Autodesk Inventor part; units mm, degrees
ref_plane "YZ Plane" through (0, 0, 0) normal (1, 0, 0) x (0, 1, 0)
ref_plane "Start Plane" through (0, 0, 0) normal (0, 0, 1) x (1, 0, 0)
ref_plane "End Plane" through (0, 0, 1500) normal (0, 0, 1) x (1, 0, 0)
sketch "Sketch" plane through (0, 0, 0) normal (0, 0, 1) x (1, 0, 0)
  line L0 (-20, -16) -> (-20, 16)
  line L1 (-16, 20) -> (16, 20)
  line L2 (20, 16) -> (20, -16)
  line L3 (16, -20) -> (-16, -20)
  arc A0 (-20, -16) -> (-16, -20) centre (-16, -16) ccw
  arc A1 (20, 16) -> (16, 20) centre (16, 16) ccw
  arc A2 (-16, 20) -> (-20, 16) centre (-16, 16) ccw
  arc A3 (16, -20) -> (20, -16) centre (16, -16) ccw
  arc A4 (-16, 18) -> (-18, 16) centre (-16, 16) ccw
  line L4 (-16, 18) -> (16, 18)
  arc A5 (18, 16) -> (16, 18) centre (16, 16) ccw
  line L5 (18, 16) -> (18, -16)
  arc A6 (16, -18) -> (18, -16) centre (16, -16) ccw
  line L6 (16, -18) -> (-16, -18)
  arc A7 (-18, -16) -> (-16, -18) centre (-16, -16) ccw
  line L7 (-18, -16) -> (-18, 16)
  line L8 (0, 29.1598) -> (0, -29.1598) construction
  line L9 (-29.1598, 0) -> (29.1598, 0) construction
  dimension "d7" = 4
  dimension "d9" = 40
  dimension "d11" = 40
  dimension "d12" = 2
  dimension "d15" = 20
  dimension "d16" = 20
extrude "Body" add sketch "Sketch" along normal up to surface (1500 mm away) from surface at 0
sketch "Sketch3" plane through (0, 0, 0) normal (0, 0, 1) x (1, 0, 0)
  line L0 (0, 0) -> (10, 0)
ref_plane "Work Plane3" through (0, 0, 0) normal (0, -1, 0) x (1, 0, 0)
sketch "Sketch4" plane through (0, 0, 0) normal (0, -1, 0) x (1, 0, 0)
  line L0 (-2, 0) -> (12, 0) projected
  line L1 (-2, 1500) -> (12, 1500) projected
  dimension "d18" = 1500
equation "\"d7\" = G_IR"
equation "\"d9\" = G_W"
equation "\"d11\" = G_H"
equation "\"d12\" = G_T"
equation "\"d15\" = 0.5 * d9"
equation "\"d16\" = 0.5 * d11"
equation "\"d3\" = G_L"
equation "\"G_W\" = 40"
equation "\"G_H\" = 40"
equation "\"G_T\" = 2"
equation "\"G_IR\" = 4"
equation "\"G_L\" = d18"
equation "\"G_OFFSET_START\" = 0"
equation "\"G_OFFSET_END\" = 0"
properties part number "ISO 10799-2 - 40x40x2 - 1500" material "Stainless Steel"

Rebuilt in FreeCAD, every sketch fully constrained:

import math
import FreeCAD as App
import Part
import Sketcher
Q = App.Units.Quantity

doc = App.newDocument("Part")
body = doc.addObject("PartDesign::Body", "Body")

# Sketch on XY plane
sketch1 = body.newObject("Sketcher::SketchObject", "Sketch")
sketch1.AttachmentSupport = (doc.getObject("XY_Plane"), [""])
sketch1.MapMode = "FlatFace"
sketch1.addGeometry([
    Part.LineSegment(App.Vector(-20, 16, 0), App.Vector(-20, -16, 0)),  # 0
    Part.ArcOfCircle(Part.Circle(App.Vector(-16, -16, 0), App.Vector(0, 0, 1), 4), math.radians(180), math.radians(270)),  # 1
    Part.LineSegment(App.Vector(-16, -20, 0), App.Vector(16, -20, 0)),  # 2
    Part.ArcOfCircle(Part.Circle(App.Vector(16, -16, 0), App.Vector(0, 0, 1), 4), math.radians(-90), math.radians(0)),  # 3
    Part.LineSegment(App.Vector(20, -16, 0), App.Vector(20, 16, 0)),  # 4
    Part.ArcOfCircle(Part.Circle(App.Vector(16, 16, 0), App.Vector(0, 0, 1), 4), math.radians(0), math.radians(90)),  # 5
    Part.LineSegment(App.Vector(16, 20, 0), App.Vector(-16, 20, 0)),  # 6
    Part.ArcOfCircle(Part.Circle(App.Vector(-16, 16, 0), App.Vector(0, 0, 1), 4), math.radians(90), math.radians(180)),  # 7
    Part.ArcOfCircle(Part.Circle(App.Vector(-16, 16, 0), App.Vector(0, 0, 1), 2), math.radians(90), math.radians(180)),  # 8
    Part.LineSegment(App.Vector(-16, 18, 0), App.Vector(16, 18, 0)),  # 9
    Part.ArcOfCircle(Part.Circle(App.Vector(16, 16, 0), App.Vector(0, 0, 1), 2), math.radians(0), math.radians(90)),  # 10
    Part.LineSegment(App.Vector(18, 16, 0), App.Vector(18, -16, 0)),  # 11
    Part.ArcOfCircle(Part.Circle(App.Vector(16, -16, 0), App.Vector(0, 0, 1), 2), math.radians(-90), math.radians(0)),  # 12
    Part.LineSegment(App.Vector(16, -18, 0), App.Vector(-16, -18, 0)),  # 13
    Part.ArcOfCircle(Part.Circle(App.Vector(-16, -16, 0), App.Vector(0, 0, 1), 2), math.radians(180), math.radians(270)),  # 14
    Part.LineSegment(App.Vector(-18, -16, 0), App.Vector(-18, 16, 0)),  # 15
], False)
sketch1.addConstraint([
    Sketcher.Constraint("Tangent", 0, 2, 1, 1),
    Sketcher.Constraint("Tangent", 1, 2, 2, 1),
    Sketcher.Constraint("Tangent", 2, 2, 3, 1),
    Sketcher.Constraint("Tangent", 3, 2, 4, 1),
    Sketcher.Constraint("Tangent", 4, 2, 5, 1),
    Sketcher.Constraint("Tangent", 5, 2, 6, 1),
    Sketcher.Constraint("Tangent", 6, 2, 7, 1),
    Sketcher.Constraint("Tangent", 7, 2, 0, 1),
    Sketcher.Constraint("Tangent", 8, 1, 9, 1),
    Sketcher.Constraint("Tangent", 9, 2, 10, 2),
    Sketcher.Constraint("Tangent", 10, 1, 11, 1),
    Sketcher.Constraint("Tangent", 11, 2, 12, 2),
    Sketcher.Constraint("Tangent", 12, 1, 13, 1),
    Sketcher.Constraint("Tangent", 13, 2, 14, 2),
    Sketcher.Constraint("Tangent", 14, 1, 15, 1),
    Sketcher.Constraint("Tangent", 15, 2, 8, 2),
    Sketcher.Constraint("Vertical", 0),
    Sketcher.Constraint("Horizontal", 2),
    Sketcher.Constraint("Vertical", 4),
    Sketcher.Constraint("Horizontal", 6),
    Sketcher.Constraint("Horizontal", 9),
    Sketcher.Constraint("Vertical", 11),
    Sketcher.Constraint("Horizontal", 13),
    Sketcher.Constraint("Vertical", 15),
    Sketcher.Constraint("Coincident", 8, 3, 7, 3),
    Sketcher.Constraint("Coincident", 10, 3, 5, 3),
    Sketcher.Constraint("Coincident", 12, 3, 3, 3),
    Sketcher.Constraint("Equal", 1, 3),
    Sketcher.Constraint("Equal", 3, 5),
    Sketcher.Constraint("Equal", 5, 7),
    Sketcher.Constraint("Equal", 12, 14),
    Sketcher.Constraint("Symmetric", 1, 3, 5, 3, -1, 1),
    Sketcher.Constraint("Equal", 13, 0),
    Sketcher.Constraint("Radius", 1, Q("4 mm")),
    Sketcher.Constraint("Radius", 8, Q("2 mm")),
    Sketcher.Constraint("DistanceX", 0, 2, -1, 1, Q("20 mm")),
])
pad1 = body.newObject("PartDesign::Pad", "Pad")
pad1.Profile = sketch1
pad1.Length = 1500

doc.recompute()
